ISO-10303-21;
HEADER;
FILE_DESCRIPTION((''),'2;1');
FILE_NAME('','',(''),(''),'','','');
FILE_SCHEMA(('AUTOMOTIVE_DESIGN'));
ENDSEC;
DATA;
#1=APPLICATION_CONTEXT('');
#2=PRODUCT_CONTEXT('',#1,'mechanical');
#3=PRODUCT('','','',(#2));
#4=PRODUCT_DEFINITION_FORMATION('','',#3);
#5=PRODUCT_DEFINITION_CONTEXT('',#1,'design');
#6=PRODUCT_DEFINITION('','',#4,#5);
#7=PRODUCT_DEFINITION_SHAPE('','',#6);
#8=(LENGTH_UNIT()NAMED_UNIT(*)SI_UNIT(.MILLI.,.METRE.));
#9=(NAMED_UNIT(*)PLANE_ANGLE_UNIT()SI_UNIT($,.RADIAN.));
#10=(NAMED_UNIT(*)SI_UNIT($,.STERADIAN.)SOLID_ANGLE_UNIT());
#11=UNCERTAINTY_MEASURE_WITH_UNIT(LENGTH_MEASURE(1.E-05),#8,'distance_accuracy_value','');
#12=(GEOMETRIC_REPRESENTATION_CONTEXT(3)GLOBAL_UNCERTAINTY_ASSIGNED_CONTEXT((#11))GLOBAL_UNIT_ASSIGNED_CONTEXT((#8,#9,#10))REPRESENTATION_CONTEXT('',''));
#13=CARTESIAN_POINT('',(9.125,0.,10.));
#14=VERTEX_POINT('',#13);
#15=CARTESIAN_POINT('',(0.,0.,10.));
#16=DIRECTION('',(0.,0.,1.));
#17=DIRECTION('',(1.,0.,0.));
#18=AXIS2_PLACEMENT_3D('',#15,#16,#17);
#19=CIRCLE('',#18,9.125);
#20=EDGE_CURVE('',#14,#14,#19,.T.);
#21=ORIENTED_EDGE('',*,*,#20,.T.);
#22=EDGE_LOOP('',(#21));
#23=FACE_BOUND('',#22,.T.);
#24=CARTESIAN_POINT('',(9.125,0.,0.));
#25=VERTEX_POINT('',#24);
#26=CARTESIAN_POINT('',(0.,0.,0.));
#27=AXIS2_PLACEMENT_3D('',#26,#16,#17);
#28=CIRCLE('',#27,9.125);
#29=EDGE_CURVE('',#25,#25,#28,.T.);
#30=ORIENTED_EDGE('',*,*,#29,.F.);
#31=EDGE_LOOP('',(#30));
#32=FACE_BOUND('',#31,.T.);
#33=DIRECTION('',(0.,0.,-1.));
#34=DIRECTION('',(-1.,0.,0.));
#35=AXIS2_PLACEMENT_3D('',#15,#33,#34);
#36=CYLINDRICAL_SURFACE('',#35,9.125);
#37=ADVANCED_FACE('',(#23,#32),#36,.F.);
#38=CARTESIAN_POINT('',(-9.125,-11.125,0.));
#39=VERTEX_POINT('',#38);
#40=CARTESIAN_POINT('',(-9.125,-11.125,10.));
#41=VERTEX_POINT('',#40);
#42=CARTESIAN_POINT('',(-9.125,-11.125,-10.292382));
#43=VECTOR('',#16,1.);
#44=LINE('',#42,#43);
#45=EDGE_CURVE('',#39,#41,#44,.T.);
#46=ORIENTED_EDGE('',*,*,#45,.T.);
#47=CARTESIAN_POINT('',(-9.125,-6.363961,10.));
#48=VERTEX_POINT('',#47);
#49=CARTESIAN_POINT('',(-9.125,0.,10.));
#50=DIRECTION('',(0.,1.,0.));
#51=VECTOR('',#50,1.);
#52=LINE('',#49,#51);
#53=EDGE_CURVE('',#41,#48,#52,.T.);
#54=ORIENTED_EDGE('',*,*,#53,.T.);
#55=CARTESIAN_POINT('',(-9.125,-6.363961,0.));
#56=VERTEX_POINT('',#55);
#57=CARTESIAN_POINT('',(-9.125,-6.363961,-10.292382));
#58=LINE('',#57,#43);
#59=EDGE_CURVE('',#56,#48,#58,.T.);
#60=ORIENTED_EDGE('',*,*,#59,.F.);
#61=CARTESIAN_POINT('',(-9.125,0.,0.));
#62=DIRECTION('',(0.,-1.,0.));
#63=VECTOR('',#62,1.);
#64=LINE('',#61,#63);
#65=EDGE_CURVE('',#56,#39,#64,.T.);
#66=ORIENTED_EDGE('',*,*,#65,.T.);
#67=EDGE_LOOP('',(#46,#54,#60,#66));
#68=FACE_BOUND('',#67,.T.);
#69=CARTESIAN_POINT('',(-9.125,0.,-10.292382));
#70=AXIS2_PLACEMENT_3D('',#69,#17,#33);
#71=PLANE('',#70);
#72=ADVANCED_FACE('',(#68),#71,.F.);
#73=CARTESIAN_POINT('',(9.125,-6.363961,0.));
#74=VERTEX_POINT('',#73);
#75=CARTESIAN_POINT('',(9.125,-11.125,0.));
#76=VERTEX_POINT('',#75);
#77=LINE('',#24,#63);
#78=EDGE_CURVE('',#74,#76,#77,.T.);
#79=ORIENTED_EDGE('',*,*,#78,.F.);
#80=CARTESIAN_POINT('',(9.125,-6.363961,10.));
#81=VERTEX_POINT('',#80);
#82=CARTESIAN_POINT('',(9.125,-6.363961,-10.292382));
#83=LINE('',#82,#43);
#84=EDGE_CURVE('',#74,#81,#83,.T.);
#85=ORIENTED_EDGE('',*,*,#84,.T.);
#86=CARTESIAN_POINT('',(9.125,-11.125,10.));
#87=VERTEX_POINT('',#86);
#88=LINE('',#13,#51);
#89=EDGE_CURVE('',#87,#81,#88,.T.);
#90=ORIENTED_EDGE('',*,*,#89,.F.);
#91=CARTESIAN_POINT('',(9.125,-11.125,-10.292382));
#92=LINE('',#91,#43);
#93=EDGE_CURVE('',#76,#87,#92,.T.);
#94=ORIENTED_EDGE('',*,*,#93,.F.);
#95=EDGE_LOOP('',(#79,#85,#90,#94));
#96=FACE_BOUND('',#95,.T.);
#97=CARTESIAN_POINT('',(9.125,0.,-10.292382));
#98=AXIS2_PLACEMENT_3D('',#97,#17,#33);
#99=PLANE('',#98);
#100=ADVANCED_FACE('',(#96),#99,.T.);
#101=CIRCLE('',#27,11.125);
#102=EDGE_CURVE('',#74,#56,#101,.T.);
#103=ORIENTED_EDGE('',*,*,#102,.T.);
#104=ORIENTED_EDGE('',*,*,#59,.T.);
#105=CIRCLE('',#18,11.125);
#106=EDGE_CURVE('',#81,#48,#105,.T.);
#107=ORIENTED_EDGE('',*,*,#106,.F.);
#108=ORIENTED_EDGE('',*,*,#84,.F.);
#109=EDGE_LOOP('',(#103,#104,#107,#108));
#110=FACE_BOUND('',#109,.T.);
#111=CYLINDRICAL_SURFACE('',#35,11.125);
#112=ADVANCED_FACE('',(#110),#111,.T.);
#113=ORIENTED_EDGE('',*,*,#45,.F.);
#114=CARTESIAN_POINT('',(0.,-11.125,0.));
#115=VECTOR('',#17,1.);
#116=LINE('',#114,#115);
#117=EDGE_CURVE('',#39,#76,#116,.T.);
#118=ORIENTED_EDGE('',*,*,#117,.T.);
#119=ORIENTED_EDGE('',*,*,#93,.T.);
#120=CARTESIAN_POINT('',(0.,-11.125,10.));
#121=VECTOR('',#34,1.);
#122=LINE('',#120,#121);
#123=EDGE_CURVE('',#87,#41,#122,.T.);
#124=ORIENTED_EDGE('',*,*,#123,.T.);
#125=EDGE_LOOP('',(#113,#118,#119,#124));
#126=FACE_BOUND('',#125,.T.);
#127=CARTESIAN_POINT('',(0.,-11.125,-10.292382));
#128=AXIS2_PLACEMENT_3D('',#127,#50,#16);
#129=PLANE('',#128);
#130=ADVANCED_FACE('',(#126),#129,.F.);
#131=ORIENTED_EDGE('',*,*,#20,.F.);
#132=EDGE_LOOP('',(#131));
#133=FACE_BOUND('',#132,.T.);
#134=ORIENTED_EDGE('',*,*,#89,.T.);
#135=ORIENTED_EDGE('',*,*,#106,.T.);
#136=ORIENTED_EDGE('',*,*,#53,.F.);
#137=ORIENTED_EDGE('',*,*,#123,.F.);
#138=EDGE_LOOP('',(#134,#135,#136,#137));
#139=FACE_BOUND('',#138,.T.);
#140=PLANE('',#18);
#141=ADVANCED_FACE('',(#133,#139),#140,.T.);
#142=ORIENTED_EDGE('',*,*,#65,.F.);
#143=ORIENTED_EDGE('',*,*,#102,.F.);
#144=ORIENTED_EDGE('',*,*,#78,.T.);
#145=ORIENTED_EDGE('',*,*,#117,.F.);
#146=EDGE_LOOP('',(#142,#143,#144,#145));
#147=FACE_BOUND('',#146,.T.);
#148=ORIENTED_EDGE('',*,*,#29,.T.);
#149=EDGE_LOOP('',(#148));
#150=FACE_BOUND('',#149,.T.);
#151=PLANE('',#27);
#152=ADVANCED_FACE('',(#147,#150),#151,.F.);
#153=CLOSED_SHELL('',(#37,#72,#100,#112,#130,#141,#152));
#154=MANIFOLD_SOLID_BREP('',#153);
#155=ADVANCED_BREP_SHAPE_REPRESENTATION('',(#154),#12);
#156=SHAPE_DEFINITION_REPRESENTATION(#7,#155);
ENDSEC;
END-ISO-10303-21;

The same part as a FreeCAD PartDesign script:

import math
import FreeCAD as App
import Part
import Sketcher

V = App.Vector
Q = App.Units.Quantity

doc = App.newDocument("Part")
body = doc.addObject("PartDesign::Body", "Body")

sketch1 = body.newObject("Sketcher::SketchObject", "Sketch")
sketch1.AttachmentSupport = (doc.getObject("XY_Plane"), [""])
sketch1.MapMode = "FlatFace"
sketch1.addGeometry([
    Part.Circle(V(0, 0, 0), V(0, 0, 1), 11),
    Part.Circle(V(0, 0, 0), V(0, 0, 1), 9),
], False)
sketch1.addConstraint([
    Sketcher.Constraint("Coincident", 0, 3, -1, 1),
    Sketcher.Constraint("Coincident", 1, 3, -1, 1),
    Sketcher.Constraint("Diameter", 0, Q("22.25 mm")),
    Sketcher.Constraint("Diameter", 1, Q("18.25 mm")),
])
pad1 = body.newObject("PartDesign::Pad", "Pad")
pad1.Profile = sketch1
pad1.Length = 10

sketch2 = body.newObject("Sketcher::SketchObject", "Sketch001")
sketch2.AttachmentSupport = (doc.getObject("XY_Plane"), [""])
sketch2.MapMode = "FlatFace"
sketch2.addGeometry([
    Part.ArcOfCircle(Part.Circle(V(0, 0, 0), V(0, 0, 1), 11.1), math.radians(-145), math.radians(-125)),
    Part.LineSegment(V(-9.1, -6.4, 0), V(-9.1, -11.1, 0)),
    Part.LineSegment(V(-9.1, -11.1, 0), V(0, -11.1, 0)),
    Part.ArcOfCircle(Part.Circle(V(0, 0, 0), V(0, 0, 1), 11.1), math.radians(-125), math.radians(-90)),
    Part.LineSegment(V(0, -11.1, 0), V(9.1, -11.1, 0)),
    Part.LineSegment(V(9.1, -11.1, 0), V(9.1, -6.4, 0)),
    Part.ArcOfCircle(Part.Circle(V(0, 0, 0), V(0, 0, 1), 11.1), math.radians(-55), math.radians(-35)),
    Part.ArcOfCircle(Part.Circle(V(0, 0, 0), V(0, 0, 1), 11.1), math.radians(-90), math.radians(-55)),
], False)
sketch2.addConstraint([
    Sketcher.Constraint("Coincident", 0, 1, 1, 1),
    Sketcher.Constraint("Coincident", 1, 2, 2, 1),
    Sketcher.Constraint("Tangent", 2, 2, 3, 2),
    Sketcher.Constraint("Tangent", 3, 1, 0, 2),
    Sketcher.Constraint("Coincident", 4, 2, 5, 1),
    Sketcher.Constraint("Coincident", 5, 2, 6, 2),
    Sketcher.Constraint("Tangent", 6, 1, 7, 2),
    Sketcher.Constraint("Tangent", 7, 1, 4, 1),
    Sketcher.Constraint("Vertical", 1),
    Sketcher.Constraint("Horizontal", 2),
    Sketcher.Constraint("Horizontal", 4),
    Sketcher.Constraint("Vertical", 5),
    Sketcher.Constraint("Coincident", 0, 3, -1, 1),
    Sketcher.Constraint("Coincident", 6, 3, -1, 1),
    Sketcher.Constraint("Coincident", 7, 1, 2, 2),
    Sketcher.Constraint("Equal", 0, 3),
    Sketcher.Constraint("Horizontal", 0, 1, 5, 2),
    Sketcher.Constraint("Horizontal", 3, 1, 6, 1),
    Sketcher.Constraint("Radius", 0, Q("11.125 mm")),
    Sketcher.Constraint("DistanceY", 1, 2, 3, 1, Q("2 mm")),
    Sketcher.Constraint("DistanceX", 2, 1, 2, 2, Q("9.125 mm")),
])
pad2 = body.newObject("PartDesign::Pad", "Pad001")
pad2.Profile = sketch2
pad2.Length = 10

doc.recompute()
